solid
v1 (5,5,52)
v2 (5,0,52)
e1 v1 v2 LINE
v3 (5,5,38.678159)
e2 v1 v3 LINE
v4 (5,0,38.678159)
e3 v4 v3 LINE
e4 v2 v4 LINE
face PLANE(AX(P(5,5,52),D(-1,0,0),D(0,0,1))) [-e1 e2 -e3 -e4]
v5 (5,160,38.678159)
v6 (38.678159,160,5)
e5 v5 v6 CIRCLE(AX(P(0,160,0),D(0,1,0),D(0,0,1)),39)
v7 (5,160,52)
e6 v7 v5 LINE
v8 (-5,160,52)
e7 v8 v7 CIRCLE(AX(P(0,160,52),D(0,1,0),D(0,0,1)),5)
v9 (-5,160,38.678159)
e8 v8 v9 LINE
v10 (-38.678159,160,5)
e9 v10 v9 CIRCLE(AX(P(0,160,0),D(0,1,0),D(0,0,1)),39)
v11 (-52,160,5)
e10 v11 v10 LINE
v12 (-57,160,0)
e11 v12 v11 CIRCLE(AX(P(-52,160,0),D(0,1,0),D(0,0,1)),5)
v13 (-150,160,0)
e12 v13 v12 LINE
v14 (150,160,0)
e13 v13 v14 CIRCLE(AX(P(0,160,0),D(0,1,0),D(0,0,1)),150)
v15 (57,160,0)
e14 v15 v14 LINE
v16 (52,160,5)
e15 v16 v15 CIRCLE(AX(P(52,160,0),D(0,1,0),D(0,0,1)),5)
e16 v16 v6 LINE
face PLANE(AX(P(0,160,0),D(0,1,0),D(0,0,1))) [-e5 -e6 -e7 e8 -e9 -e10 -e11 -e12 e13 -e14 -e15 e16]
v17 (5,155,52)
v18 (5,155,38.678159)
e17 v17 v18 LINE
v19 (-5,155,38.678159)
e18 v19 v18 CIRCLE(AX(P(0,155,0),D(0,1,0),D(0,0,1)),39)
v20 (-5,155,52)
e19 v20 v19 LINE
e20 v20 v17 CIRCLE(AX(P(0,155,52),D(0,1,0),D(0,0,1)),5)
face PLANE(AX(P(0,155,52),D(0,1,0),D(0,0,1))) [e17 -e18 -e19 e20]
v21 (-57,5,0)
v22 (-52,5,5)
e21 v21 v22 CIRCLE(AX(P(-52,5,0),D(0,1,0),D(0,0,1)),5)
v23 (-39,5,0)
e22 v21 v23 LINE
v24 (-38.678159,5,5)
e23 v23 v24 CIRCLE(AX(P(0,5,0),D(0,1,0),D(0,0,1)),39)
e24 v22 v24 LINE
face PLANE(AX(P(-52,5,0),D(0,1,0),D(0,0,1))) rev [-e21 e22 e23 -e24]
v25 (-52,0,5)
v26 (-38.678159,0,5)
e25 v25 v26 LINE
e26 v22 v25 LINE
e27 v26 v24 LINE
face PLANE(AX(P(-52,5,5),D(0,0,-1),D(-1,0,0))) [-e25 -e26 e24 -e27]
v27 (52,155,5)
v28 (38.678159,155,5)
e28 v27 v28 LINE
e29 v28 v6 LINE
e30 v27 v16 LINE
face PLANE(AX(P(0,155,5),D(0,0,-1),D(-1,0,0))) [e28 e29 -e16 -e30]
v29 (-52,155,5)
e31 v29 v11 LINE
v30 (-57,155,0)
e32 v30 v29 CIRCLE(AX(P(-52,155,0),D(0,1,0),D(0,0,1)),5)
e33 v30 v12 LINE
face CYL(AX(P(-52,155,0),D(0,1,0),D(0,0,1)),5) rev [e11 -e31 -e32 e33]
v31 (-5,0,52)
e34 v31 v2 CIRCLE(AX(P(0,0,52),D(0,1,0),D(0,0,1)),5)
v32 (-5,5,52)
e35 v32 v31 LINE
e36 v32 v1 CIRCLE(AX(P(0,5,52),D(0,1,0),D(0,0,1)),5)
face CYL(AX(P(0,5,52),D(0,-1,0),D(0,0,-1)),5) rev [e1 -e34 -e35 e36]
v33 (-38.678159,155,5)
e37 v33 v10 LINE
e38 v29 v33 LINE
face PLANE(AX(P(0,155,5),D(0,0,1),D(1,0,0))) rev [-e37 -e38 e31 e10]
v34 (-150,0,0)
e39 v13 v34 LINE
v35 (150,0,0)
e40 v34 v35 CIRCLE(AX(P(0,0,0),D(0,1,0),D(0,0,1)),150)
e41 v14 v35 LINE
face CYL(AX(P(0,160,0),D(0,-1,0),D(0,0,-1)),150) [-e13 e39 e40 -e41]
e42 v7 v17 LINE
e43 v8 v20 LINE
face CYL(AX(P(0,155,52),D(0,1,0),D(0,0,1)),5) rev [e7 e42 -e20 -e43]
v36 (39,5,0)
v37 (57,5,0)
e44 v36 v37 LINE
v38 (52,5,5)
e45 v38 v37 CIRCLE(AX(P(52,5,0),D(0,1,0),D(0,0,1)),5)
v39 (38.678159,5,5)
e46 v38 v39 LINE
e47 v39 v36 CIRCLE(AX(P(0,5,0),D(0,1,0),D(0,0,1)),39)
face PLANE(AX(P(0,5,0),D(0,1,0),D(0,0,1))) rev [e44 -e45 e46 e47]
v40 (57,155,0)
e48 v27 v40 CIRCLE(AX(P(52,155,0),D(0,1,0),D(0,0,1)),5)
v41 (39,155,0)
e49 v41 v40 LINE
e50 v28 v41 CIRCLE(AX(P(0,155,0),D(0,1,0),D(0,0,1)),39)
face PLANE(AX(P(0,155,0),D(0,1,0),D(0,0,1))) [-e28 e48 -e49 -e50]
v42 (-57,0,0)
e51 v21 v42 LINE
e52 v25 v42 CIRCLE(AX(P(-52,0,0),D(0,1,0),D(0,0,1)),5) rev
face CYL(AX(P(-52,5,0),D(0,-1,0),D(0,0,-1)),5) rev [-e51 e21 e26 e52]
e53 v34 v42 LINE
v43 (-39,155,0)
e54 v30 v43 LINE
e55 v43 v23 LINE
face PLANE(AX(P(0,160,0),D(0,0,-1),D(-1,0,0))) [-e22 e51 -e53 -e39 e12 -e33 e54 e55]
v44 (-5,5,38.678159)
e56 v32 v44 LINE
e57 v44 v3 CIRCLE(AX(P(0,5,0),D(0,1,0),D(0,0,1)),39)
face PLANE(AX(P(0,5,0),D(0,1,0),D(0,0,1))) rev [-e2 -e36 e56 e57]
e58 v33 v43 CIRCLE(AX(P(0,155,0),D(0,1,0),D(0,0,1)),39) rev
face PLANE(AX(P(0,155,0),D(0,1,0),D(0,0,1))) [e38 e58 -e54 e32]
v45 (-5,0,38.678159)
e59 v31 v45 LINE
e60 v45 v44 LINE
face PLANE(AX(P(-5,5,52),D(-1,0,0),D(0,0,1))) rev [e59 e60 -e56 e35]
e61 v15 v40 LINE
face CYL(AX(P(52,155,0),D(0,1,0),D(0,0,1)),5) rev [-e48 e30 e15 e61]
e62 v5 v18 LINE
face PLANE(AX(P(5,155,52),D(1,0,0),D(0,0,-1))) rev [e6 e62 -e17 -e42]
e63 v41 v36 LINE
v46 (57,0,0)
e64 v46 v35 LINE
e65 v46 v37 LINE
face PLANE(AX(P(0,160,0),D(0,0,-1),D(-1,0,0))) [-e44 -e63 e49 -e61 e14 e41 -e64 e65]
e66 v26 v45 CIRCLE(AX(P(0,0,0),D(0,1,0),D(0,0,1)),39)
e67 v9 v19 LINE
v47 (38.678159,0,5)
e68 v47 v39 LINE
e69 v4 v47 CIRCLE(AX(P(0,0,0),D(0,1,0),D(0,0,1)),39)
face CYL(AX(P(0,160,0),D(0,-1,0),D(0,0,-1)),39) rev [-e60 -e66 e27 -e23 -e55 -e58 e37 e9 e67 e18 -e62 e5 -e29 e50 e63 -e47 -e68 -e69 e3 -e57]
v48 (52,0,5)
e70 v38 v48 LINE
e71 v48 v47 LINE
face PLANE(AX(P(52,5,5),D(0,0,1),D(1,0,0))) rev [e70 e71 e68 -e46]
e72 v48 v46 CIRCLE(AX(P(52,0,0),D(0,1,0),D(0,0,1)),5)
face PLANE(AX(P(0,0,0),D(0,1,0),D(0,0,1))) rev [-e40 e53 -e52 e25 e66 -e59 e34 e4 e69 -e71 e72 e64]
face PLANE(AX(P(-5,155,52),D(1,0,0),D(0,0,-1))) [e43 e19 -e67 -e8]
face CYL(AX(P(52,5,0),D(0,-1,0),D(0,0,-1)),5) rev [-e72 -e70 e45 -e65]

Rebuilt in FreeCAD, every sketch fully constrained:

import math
import FreeCAD as App
import Part
import Sketcher

V = App.Vector
Q = App.Units.Quantity

doc = App.newDocument("Part")
body = doc.addObject("PartDesign::Body", "Body")

sketch1 = body.newObject("Sketcher::SketchObject", "Sketch")
sketch1.AttachmentSupport = (doc.getObject("XZ_Plane"), [""])
sketch1.MapMode = "FlatFace"
sketch1.addGeometry([
    Part.LineSegment(V(150, 0, 0), V(39, 0, 0)),
    Part.ArcOfCircle(Part.Circle(V(0, 0, 0), V(0, 0, 1), 39), math.radians(0), math.radians(180)),
    Part.LineSegment(V(-39, 0, 0), V(-150, 0, 0)),
    Part.ArcOfCircle(Part.Circle(V(0, 0, 0), V(0, 0, 1), 150), math.radians(0), math.radians(180)),
], False)
sketch1.addConstraint([
    Sketcher.Constraint("Coincident", 0, 2, 1, 1),
    Sketcher.Constraint("Coincident", 1, 2, 2, 1),
    Sketcher.Constraint("Coincident", 2, 2, 3, 2),
    Sketcher.Constraint("Coincident", 3, 1, 0, 1),
    Sketcher.Constraint("Horizontal", 0),
    Sketcher.Constraint("Horizontal", 2),
    Sketcher.Constraint("Coincident", 1, 3, -1, 1),
    Sketcher.Constraint("Coincident", 3, 3, -1, 1),
    Sketcher.Constraint("PointOnObject", 0, 2, -1),
    Sketcher.Constraint("PointOnObject", 1, 2, -1),
    Sketcher.Constraint("Radius", 1, Q("39 mm")),
    Sketcher.Constraint("Radius", 3, Q("150 mm")),
])
pad1 = body.newObject("PartDesign::Pad", "Pad")
pad1.Profile = sketch1
pad1.Length = 160
pad1.Reversed = True

sketch2 = body.newObject("Sketcher::SketchObject", "Sketch001")
sketch2.AttachmentSupport = (doc.getObject("XZ_Plane"), [""])
sketch2.MapMode = "FlatFace"
sketch2.AttachmentOffset = App.Placement(V(0, 0, -155), App.Rotation())
sketch2.addGeometry([
    Part.ArcOfCircle(Part.Circle(V(-52, 0, 0), V(0, 0, 1), 5), math.radians(90), math.radians(180)),
    Part.LineSegment(V(-52, 5, 0), V(-39, 5, 0)),
    Part.ArcOfCircle(Part.Circle(V(0, 0, 0), V(0, 0, 1), 39), math.radians(172.63), math.radians(180)),
    Part.ArcOfCircle(Part.Circle(V(0, 0, 0), V(0, 0, 1), 39), math.radians(-180), math.radians(-172.63)),
    Part.LineSegment(V(-39, -5, 0), V(-52, -5, 0)),
    Part.ArcOfCircle(Part.Circle(V(-52, 0, 0), V(0, 0, 1), 5), math.radians(180), math.radians(270)),
    Part.LineSegment(V(52, -5, 0), V(39, -5, 0)),
    Part.ArcOfCircle(Part.Circle(V(0, 0, 0), V(0, 0, 1), 39), math.radians(-7.37), math.radians(0)),
    Part.ArcOfCircle(Part.Circle(V(0, 0, 0), V(0, 0, 1), 39), math.radians(0), math.radians(7.37)),
    Part.LineSegment(V(39, 5, 0), V(52, 5, 0)),
    Part.ArcOfCircle(Part.Circle(V(52, 0, 0), V(0, 0, 1), 5), math.radians(0), math.radians(90)),
    Part.ArcOfCircle(Part.Circle(V(52, 0, 0), V(0, 0, 1), 5), math.radians(-90), math.radians(0)),
    Part.ArcOfCircle(Part.Circle(V(0, 52, 0), V(0, 0, 1), 5), math.radians(0), math.radians(180)),
    Part.LineSegment(V(5, 52, 0), V(5, 35, 0)),
    Part.LineSegment(V(5, 35, 0), V(-5, 35, 0)),
    Part.LineSegment(V(-5, 35, 0), V(-5, 52, 0)),
], False)
sketch2.addConstraint([
    Sketcher.Constraint("Tangent", 0, 1, 1, 1),
    Sketcher.Constraint("Coincident", 1, 2, 2, 1),
    Sketcher.Constraint("Tangent", 2, 2, 3, 1),
    Sketcher.Constraint("Coincident", 3, 2, 4, 1),
    Sketcher.Constraint("Tangent", 4, 2, 5, 2),
    Sketcher.Constraint("Tangent", 5, 1, 0, 2),
    Sketcher.Constraint("Coincident", 6, 2, 7, 1),
    Sketcher.Constraint("Tangent", 7, 2, 8, 1),
    Sketcher.Constraint("Coincident", 8, 2, 9, 1),
    Sketcher.Constraint("Tangent", 9, 2, 10, 2),
    Sketcher.Constraint("Tangent", 10, 1, 11, 2),
    Sketcher.Constraint("Tangent", 11, 1, 6, 1),
    Sketcher.Constraint("Tangent", 12, 1, 13, 1),
    Sketcher.Constraint("Coincident", 13, 2, 14, 1),
    Sketcher.Constraint("Coincident", 14, 2, 15, 1),
    Sketcher.Constraint("Tangent", 15, 2, 12, 2),
    Sketcher.Constraint("Horizontal", 1),
    Sketcher.Constraint("Horizontal", 4),
    Sketcher.Constraint("Horizontal", 6),
    Sketcher.Constraint("Horizontal", 9),
    Sketcher.Constraint("Vertical", 13),
    Sketcher.Constraint("Horizontal", 14),
    Sketcher.Constraint("Vertical", 15),
    Sketcher.Constraint("Coincident", 2, 3, -1, 1),
    Sketcher.Constraint("Coincident", 7, 3, -1, 1),
    Sketcher.Constraint("Equal", 2, 3),
    Sketcher.Constraint("Equal", 0, 5),
    Sketcher.Constraint("Equal", 3, 7),
    Sketcher.Constraint("Equal", 7, 8),
    Sketcher.Constraint("Equal", 5, 10),
    Sketcher.Constraint("Equal", 10, 11),
    Sketcher.Constraint("Equal", 11, 12),
    Sketcher.Constraint("Symmetric", 0, 3, 10, 3, -1, 1),
    Sketcher.Constraint("PointOnObject", 0, 3, -1),
    Sketcher.Constraint("PointOnObject", 12, 3, -2),
    Sketcher.Constraint("PointOnObject", 2, 2, -1),
    Sketcher.Constraint("PointOnObject", 5, 1, -1),
    Sketcher.Constraint("PointOnObject", 7, 2, -1),
    Sketcher.Constraint("PointOnObject", 10, 1, -1),
    Sketcher.Constraint("Radius", 0, Q("5 mm")),
    Sketcher.Constraint("Radius", 2, Q("39 mm")),
    Sketcher.Constraint("DistanceX", 0, 3, -1, 1, Q("52 mm")),
    Sketcher.Constraint("DistanceY", -1, 1, 12, 3, Q("52 mm")),
    Sketcher.Constraint("DistanceY", 13, 2, 13, 1, Q("16.926186 mm")),
])
pocket1 = body.newObject("PartDesign::Pocket", "Pocket")
pocket1.Profile = sketch2
pocket1.Length = 5

sketch3 = body.newObject("Sketcher::SketchObject", "Sketch002")
sketch3.AttachmentSupport = (doc.getObject("XZ_Plane"), [""])
sketch3.MapMode = "FlatFace"
sketch3.addGeometry([
    Part.ArcOfCircle(Part.Circle(V(0, 52, 0), V(0, 0, 1), 5), math.radians(0), math.radians(180)),
    Part.LineSegment(V(5, 52, 0), V(5, 35, 0)),
    Part.LineSegment(V(5, 35, 0), V(-5, 35, 0)),
    Part.LineSegment(V(-5, 35, 0), V(-5, 52, 0)),
    Part.LineSegment(V(-52, 5, 0), V(-35, 5, 0)),
    Part.LineSegment(V(-35, 5, 0), V(-35, -5, 0)),
    Part.LineSegment(V(-35, -5, 0), V(-52, -5, 0)),
    Part.ArcOfCircle(Part.Circle(V(-52, 0, 0), V(0, 0, 1), 5), math.radians(90), math.radians(270)),
    Part.ArcOfCircle(Part.Circle(V(52, 0, 0), V(0, 0, 1), 5), math.radians(-90), math.radians(90)),
    Part.LineSegment(V(52, -5, 0), V(35, -5, 0)),
    Part.LineSegment(V(35, -5, 0), V(35, 5, 0)),
    Part.LineSegment(V(35, 5, 0), V(52, 5, 0)),
], False)
sketch3.addConstraint([
    Sketcher.Constraint("Tangent", 0, 1, 1, 1),
    Sketcher.Constraint("Coincident", 1, 2, 2, 1),
    Sketcher.Constraint("Coincident", 2, 2, 3, 1),
    Sketcher.Constraint("Tangent", 3, 2, 0, 2),
    Sketcher.Constraint("Coincident", 4, 2, 5, 1),
    Sketcher.Constraint("Coincident", 5, 2, 6, 1),
    Sketcher.Constraint("Tangent", 6, 2, 7, 2),
    Sketcher.Constraint("Tangent", 7, 1, 4, 1),
    Sketcher.Constraint("Tangent", 8, 1, 9, 1),
    Sketcher.Constraint("Coincident", 9, 2, 10, 1),
    Sketcher.Constraint("Coincident", 10, 2, 11, 1),
    Sketcher.Constraint("Tangent", 11, 2, 8, 2),
    Sketcher.Constraint("Vertical", 1),
    Sketcher.Constraint("Horizontal", 2),
    Sketcher.Constraint("Vertical", 3),
    Sketcher.Constraint("Horizontal", 4),
    Sketcher.Constraint("Vertical", 5),
    Sketcher.Constraint("Horizontal", 6),
    Sketcher.Constraint("Horizontal", 9),
    Sketcher.Constraint("Vertical", 10),
    Sketcher.Constraint("Horizontal", 11),
    Sketcher.Constraint("Equal", 0, 7),
    Sketcher.Constraint("Equal", 7, 8),
    Sketcher.Constraint("Symmetric", 7, 3, 8, 3, -1, 1),
    Sketcher.Constraint("Symmetric", 5, 2, 9, 2, -2),
    Sketcher.Constraint("PointOnObject", 0, 3, -2),
    Sketcher.Constraint("Equal", 11, 1),
    Sketcher.Constraint("Radius", 0, Q("5 mm")),
    Sketcher.Constraint("DistanceY", -1, 1, 0, 3, Q("52 mm")),
    Sketcher.Constraint("DistanceX", 7, 3, -1, 1, Q("52 mm")),
    Sketcher.Constraint("DistanceX", 4, 1, 4, 2, Q("16.926186 mm")),
])
pocket2 = body.newObject("PartDesign::Pocket", "Pocket001")
pocket2.Profile = sketch3
pocket2.Length = 5

doc.recompute()
